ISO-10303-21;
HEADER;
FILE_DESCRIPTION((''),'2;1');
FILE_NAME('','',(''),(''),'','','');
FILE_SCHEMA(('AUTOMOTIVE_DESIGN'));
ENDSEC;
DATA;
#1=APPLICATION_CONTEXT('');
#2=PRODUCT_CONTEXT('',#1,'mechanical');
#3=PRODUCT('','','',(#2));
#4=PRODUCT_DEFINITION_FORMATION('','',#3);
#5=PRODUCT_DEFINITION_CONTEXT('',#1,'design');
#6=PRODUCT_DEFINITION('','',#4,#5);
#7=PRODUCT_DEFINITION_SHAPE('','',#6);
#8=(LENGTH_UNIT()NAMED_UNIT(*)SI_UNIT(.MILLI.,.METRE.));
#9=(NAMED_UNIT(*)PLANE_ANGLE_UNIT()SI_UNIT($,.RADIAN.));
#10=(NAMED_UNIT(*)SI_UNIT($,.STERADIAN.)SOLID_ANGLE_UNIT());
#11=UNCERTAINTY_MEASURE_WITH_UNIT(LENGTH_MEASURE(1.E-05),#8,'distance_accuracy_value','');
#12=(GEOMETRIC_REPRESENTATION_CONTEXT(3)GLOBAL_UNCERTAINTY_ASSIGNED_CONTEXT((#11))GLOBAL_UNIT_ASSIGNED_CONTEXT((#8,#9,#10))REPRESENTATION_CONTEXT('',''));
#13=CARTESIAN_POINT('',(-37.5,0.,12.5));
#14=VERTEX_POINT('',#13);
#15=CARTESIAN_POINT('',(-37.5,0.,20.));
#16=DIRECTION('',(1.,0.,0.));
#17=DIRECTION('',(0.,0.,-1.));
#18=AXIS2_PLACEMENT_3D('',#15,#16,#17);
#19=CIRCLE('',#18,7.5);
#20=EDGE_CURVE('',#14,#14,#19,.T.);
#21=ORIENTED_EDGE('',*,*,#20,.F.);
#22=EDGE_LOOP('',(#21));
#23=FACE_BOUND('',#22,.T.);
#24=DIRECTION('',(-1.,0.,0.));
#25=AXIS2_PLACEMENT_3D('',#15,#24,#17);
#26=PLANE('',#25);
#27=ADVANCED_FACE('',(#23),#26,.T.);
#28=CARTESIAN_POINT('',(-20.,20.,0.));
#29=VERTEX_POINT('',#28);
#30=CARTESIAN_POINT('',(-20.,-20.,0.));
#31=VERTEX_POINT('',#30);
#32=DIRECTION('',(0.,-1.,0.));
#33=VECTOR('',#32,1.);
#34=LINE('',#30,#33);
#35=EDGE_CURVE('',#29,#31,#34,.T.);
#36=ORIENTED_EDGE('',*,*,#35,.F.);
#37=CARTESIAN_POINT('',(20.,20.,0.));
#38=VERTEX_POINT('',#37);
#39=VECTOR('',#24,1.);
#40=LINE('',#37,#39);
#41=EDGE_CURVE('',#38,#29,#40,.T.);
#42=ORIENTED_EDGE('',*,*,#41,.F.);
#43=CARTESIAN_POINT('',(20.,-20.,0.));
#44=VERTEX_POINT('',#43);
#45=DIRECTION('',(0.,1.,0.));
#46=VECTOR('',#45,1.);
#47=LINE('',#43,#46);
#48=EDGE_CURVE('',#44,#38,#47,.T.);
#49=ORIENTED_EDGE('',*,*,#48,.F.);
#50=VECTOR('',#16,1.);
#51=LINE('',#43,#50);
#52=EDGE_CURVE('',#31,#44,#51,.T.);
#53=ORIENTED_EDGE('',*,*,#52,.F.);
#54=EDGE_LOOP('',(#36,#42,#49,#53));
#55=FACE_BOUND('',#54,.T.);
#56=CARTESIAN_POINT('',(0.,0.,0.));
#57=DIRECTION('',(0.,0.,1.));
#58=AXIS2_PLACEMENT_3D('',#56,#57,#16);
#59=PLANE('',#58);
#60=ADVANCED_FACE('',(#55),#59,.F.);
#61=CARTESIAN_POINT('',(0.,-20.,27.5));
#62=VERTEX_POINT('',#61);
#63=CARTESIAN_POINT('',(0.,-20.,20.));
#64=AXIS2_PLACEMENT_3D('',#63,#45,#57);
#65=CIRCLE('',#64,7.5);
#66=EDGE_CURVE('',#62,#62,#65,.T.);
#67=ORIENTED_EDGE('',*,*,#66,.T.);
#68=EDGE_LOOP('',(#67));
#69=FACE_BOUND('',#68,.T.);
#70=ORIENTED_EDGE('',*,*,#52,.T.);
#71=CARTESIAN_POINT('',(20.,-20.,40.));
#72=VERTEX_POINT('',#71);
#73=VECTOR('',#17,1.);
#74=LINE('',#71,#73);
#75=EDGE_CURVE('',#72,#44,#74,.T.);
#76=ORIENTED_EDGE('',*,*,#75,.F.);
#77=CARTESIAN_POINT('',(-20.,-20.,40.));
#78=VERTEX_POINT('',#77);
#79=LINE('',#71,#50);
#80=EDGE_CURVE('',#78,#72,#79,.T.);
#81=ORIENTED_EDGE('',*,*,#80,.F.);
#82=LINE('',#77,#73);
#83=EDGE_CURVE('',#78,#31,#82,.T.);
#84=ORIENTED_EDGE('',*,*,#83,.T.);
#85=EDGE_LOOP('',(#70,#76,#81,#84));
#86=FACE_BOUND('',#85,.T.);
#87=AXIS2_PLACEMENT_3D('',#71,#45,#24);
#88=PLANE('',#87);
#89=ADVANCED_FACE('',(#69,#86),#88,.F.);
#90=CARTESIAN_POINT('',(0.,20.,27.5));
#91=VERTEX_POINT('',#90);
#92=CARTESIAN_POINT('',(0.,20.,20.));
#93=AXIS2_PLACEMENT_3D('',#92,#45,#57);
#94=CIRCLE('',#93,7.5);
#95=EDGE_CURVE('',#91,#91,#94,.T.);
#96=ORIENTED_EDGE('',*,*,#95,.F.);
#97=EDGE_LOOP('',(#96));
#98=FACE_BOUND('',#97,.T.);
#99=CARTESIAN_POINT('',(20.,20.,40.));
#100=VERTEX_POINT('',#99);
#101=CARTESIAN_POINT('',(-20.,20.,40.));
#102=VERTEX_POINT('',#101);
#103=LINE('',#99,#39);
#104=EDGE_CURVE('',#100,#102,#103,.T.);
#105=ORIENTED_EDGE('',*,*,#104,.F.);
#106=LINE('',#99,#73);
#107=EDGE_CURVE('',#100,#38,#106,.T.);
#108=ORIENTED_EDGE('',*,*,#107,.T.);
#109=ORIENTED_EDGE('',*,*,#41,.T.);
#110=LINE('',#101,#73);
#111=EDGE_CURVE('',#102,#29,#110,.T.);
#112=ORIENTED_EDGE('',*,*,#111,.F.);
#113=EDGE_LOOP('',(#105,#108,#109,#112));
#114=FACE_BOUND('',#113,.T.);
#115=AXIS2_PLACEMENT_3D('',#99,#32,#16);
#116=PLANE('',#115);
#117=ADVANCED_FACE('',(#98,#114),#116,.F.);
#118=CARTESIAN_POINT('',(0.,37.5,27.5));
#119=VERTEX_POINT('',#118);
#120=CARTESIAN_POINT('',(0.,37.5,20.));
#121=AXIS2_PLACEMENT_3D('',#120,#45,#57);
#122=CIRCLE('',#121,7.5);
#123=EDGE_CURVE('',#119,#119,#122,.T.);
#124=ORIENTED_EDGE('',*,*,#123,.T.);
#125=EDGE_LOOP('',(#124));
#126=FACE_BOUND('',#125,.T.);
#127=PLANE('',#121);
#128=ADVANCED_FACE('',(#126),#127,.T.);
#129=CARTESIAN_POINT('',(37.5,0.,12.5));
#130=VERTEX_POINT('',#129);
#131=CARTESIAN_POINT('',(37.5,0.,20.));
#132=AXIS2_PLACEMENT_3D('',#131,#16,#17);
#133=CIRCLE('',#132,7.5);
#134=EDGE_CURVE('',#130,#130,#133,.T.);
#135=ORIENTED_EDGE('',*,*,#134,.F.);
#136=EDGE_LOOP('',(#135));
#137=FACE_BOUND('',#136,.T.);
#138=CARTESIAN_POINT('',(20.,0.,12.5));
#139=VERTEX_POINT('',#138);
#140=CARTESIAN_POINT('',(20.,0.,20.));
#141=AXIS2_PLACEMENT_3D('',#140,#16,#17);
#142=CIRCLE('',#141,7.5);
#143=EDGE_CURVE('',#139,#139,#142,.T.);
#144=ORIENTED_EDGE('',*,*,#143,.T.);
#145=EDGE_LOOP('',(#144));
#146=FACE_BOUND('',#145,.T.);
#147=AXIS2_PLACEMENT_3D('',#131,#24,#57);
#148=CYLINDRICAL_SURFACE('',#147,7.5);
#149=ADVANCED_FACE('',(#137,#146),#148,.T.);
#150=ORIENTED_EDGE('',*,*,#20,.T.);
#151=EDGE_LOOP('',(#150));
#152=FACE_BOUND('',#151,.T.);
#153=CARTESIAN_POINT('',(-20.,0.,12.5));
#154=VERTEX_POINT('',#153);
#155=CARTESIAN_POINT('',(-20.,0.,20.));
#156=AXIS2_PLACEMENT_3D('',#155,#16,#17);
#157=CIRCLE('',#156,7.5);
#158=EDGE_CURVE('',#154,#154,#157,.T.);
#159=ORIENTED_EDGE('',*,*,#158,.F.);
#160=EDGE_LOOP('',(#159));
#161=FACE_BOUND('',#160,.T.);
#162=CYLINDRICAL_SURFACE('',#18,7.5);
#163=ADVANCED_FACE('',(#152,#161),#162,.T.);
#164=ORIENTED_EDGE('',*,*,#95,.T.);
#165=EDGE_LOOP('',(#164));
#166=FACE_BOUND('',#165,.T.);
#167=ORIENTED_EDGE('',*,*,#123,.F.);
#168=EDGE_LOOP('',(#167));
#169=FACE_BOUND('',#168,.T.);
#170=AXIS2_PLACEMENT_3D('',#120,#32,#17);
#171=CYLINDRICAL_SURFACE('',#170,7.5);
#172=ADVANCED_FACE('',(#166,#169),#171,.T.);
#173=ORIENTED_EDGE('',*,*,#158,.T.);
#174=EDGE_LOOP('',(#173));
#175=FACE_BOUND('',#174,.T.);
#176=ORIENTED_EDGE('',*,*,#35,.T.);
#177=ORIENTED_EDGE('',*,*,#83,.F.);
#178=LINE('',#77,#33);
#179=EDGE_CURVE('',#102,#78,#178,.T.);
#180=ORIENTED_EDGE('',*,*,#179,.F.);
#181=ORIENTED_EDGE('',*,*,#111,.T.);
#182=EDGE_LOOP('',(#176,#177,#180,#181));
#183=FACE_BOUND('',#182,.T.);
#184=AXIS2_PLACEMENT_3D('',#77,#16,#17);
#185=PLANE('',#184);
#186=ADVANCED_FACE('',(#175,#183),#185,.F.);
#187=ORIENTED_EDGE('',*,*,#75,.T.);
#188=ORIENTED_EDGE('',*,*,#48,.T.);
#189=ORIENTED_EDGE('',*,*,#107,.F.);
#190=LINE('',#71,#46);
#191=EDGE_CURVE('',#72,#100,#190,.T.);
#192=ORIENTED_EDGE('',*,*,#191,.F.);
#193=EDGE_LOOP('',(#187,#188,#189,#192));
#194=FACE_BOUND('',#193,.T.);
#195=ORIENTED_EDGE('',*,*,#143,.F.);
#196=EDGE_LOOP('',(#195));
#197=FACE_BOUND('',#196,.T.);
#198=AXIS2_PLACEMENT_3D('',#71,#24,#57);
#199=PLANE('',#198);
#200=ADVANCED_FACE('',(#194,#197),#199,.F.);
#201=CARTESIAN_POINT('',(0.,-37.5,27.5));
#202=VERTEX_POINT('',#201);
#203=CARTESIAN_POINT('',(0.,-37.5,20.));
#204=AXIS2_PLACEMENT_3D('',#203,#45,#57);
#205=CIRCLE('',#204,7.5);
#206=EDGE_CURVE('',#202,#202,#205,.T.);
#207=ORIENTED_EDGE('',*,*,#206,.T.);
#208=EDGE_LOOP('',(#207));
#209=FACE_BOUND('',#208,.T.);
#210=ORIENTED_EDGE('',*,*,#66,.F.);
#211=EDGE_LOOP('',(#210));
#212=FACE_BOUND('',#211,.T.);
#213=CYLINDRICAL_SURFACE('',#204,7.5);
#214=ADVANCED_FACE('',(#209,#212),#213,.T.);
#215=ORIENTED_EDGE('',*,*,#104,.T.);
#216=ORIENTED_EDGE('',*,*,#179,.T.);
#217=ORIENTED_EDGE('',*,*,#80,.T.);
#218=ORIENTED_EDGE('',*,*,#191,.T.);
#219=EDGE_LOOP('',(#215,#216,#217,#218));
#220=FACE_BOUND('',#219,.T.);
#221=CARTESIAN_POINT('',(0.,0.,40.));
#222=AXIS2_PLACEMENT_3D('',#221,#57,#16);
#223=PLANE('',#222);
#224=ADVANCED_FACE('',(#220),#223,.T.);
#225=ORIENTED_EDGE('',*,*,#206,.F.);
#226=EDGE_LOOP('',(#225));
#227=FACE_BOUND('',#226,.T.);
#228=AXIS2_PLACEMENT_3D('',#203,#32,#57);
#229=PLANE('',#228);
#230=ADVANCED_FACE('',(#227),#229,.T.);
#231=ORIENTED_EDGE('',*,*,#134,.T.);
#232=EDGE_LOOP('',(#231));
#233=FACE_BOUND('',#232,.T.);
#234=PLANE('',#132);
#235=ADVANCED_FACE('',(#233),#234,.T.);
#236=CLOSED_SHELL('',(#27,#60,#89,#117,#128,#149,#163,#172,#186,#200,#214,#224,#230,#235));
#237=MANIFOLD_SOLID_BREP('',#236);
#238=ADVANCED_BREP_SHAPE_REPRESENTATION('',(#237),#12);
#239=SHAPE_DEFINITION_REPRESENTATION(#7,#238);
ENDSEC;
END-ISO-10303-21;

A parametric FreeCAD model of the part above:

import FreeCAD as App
import Part
import Sketcher

V = App.Vector


def add_polygon(sketch, points):
    """Adds a closed chain of lines whose ends are joined by coincident constraints."""
    first, n = sketch.GeometryCount, len(points)
    for a, b in zip(points, points[1:] + points[:1]):
        sketch.addGeometry(Part.LineSegment(App.Vector(*a, 0), App.Vector(*b, 0)), False)
    for i in range(n):
        sketch.addConstraint(Sketcher.Constraint("Coincident", first + i, 2, first + (i + 1) % n, 1))

doc = App.newDocument("Part")
body = doc.addObject("PartDesign::Body", "Body")

# Sketch on XY plane
sketch1 = body.newObject("Sketcher::SketchObject", "Sketch")
sketch1.AttachmentSupport = (doc.getObject("XY_Plane"), [""])
sketch1.MapMode = "FlatFace"
add_polygon(sketch1, [(-20, 20), (-20, -20), (20, -20), (20, 20)])  # lines 0-3
sketch1.addConstraint([
    Sketcher.Constraint("Vertical", 0),
    Sketcher.Constraint("Horizontal", 1),
    Sketcher.Constraint("Vertical", 2),
    Sketcher.Constraint("Horizontal", 3),
    Sketcher.Constraint("Symmetric", 0, 2, 2, 2, -1, 1),
    Sketcher.Constraint("Equal", 3, 0),
    Sketcher.Constraint("DistanceX", 1, 1, 1, 2, 40.0),
])
pad1 = body.newObject("PartDesign::Pad", "Pad")
pad1.Profile = sketch1
pad1.Length = 40

# Sketch on XZ plane
sketch2 = body.newObject("Sketcher::SketchObject", "Sketch001")
sketch2.AttachmentSupport = (doc.getObject("XZ_Plane"), [""])
sketch2.MapMode = "FlatFace"
sketch2.AttachmentOffset = App.Placement(V(0, 0, -20), App.Rotation())
sketch2.addGeometry(Part.Circle(V(0, 20, 0), V(0, 0, 1), 8), False)
sketch2.addConstraint([
    Sketcher.Constraint("PointOnObject", 0, 3, -2),
    Sketcher.Constraint("Diameter", 0, 15.0),
    Sketcher.Constraint("DistanceY", -1, 1, 0, 3, 20.0),
])
pad2 = body.newObject("PartDesign::Pad", "Pad001")
pad2.Profile = sketch2
pad2.Length = 17.5
pad2.Reversed = True
doc.recompute()

mirrored = body.newObject("PartDesign::Mirrored", "Mirrored")
mirrored.Originals = [pad2]
mirrored.MirrorPlane = (doc.getObject("XZ_Plane"), [""])
body.Tip = mirrored

# Sketch on YZ plane
sketch3 = body.newObject("Sketcher::SketchObject", "Sketch002")
sketch3.AttachmentSupport = (doc.getObject("YZ_Plane"), [""])
sketch3.MapMode = "FlatFace"
sketch3.AttachmentOffset = App.Placement(V(0, 0, 20), App.Rotation())
sketch3.addGeometry(Part.Circle(V(0, 20, 0), V(0, 0, 1), 8), False)
sketch3.addConstraint([
    Sketcher.Constraint("PointOnObject", 0, 3, -2),
    Sketcher.Constraint("Diameter", 0, 15.0),
    Sketcher.Constraint("DistanceY", -1, 1, 0, 3, 20.0),
])
pad3 = body.newObject("PartDesign::Pad", "Pad002")
pad3.Profile = sketch3
pad3.Length = 17.5
doc.recompute()

mirrored2 = body.newObject("PartDesign::Mirrored", "Mirrored001")
mirrored2.Originals = [pad3]
mirrored2.MirrorPlane = (doc.getObject("YZ_Plane"), [""])
body.Tip = mirrored2

doc.recompute()
